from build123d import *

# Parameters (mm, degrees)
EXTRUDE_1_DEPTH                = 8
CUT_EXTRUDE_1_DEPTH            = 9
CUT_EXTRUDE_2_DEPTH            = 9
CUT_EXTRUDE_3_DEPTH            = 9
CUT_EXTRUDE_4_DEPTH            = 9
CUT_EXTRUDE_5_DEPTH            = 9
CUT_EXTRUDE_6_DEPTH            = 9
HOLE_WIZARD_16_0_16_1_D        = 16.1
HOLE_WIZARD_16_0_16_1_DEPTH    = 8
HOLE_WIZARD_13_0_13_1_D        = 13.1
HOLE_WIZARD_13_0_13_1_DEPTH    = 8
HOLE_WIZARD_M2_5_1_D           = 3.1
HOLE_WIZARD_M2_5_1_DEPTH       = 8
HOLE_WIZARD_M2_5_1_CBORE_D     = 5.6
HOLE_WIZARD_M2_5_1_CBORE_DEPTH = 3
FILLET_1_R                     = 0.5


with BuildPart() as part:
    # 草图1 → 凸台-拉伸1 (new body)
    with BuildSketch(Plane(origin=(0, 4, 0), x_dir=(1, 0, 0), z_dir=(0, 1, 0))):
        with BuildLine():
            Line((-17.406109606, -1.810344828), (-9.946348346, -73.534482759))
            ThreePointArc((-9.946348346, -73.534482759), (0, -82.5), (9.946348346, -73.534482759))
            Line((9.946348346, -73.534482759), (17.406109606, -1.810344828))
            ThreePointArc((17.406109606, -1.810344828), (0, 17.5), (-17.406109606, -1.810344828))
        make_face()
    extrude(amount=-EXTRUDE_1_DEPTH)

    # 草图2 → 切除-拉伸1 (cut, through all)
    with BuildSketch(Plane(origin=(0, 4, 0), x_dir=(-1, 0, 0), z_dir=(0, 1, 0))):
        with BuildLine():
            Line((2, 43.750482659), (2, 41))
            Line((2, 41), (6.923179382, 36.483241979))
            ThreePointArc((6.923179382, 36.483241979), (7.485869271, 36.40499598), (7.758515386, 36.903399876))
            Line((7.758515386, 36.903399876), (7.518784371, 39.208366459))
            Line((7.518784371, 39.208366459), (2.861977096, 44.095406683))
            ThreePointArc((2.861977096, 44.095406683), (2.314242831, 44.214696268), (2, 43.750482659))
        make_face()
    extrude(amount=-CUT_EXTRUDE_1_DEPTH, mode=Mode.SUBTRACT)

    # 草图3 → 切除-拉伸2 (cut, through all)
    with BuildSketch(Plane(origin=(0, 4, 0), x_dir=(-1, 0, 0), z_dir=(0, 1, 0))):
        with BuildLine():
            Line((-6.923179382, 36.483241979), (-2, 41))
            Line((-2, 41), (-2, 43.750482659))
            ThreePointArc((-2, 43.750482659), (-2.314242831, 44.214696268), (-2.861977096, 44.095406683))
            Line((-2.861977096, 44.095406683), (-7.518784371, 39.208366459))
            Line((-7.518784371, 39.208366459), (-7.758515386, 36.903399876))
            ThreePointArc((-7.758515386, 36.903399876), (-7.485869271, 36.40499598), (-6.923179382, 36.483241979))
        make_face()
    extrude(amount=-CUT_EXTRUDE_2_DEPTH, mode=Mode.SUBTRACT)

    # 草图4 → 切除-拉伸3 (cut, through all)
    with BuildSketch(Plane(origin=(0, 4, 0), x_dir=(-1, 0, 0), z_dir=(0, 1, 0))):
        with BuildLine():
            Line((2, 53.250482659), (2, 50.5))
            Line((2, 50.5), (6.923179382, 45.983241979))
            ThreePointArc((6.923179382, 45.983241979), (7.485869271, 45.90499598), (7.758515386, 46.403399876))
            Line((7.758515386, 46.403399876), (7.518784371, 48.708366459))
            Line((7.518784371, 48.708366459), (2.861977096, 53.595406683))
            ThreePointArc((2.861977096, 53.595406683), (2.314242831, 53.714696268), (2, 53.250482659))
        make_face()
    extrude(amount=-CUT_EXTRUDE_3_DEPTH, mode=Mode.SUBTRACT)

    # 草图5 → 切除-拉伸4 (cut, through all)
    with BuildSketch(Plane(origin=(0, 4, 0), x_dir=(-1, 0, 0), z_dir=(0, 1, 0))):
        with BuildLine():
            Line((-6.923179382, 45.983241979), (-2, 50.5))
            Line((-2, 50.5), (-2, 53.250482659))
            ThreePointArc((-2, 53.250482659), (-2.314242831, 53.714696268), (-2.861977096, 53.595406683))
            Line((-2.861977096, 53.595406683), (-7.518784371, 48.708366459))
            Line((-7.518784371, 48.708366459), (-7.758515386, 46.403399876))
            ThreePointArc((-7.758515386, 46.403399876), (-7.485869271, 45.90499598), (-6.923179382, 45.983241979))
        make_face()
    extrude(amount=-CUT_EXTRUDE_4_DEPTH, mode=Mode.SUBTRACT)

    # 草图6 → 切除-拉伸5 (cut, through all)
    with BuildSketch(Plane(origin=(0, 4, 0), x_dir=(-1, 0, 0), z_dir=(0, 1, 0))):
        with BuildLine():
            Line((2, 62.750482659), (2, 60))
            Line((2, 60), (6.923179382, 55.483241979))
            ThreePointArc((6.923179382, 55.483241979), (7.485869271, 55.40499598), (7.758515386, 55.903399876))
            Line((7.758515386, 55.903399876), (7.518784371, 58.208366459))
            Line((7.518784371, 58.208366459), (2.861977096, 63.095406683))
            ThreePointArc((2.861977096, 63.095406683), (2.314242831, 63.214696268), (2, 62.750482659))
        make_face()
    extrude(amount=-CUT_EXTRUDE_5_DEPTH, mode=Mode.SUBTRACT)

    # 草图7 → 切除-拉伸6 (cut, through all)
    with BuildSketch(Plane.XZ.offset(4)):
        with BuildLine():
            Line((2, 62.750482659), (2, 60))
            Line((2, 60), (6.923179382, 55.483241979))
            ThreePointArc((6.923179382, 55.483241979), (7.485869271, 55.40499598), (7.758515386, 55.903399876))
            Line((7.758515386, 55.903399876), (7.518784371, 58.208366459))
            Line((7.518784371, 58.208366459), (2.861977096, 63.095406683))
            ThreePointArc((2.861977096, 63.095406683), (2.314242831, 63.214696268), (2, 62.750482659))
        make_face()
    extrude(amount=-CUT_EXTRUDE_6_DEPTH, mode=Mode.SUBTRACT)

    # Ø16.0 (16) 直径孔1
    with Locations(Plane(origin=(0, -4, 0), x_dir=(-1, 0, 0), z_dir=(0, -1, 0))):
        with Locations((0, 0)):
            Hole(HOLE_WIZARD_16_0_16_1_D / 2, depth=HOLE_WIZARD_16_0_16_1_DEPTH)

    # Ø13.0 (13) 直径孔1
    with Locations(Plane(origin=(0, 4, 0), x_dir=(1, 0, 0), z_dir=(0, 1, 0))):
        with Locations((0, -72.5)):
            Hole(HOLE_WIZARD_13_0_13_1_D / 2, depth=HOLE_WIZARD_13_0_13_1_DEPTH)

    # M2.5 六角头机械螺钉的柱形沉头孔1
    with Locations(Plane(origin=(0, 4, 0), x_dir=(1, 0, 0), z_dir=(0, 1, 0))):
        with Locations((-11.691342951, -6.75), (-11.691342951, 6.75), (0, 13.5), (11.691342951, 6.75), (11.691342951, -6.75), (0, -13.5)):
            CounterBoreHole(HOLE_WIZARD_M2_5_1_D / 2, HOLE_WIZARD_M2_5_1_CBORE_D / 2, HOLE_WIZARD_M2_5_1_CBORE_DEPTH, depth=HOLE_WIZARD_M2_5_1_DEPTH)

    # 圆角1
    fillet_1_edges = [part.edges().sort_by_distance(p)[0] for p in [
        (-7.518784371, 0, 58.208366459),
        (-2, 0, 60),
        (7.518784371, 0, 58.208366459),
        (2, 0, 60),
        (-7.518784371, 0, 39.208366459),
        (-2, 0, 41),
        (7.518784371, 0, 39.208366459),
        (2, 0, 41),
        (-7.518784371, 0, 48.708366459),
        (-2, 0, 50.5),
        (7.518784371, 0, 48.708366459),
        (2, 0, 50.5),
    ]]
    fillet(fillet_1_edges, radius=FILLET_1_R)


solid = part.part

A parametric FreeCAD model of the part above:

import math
import FreeCAD as App
import Part
import Sketcher

V = App.Vector


def edges_at(feature, points):
    """Names of the edges that pass closest to the given points."""
    edges = feature.Shape.Edges
    near = lambda p: min(range(len(edges)), key=lambda i: edges[i].distToShape(Part.Vertex(*p))[0])
    return sorted({f"Edge{near(p) + 1}" for p in points})

doc = App.newDocument("Part")
body = doc.addObject("PartDesign::Body", "Body")

sketch1 = body.newObject("Sketcher::SketchObject", "Sketch")
sketch1.AttachmentSupport = (doc.getObject("XZ_Plane"), [""])
sketch1.MapMode = "FlatFace"
sketch1.AttachmentOffset = App.Placement(V(0, 0, -4), App.Rotation())
sketch1.addGeometry([
    Part.LineSegment(V(-17, 2, 0), V(-10, 74, 0)),
    Part.ArcOfCircle(Part.Circle(V(0, 72, 0), V(0, 0, 1), 10), math.radians(6), math.radians(174)),
    Part.LineSegment(V(10, 74, 0), V(17, 2, 0)),
    Part.ArcOfCircle(Part.Circle(V(0, 0, 0), V(0, 0, 1), 18), math.radians(174), math.radians(366)),
], False)
sketch1.addConstraint([
    Sketcher.Constraint("Tangent", 0, 2, 1, 2),
    Sketcher.Constraint("Tangent", 1, 1, 2, 1),
    Sketcher.Constraint("Tangent", 2, 2, 3, 2),
    Sketcher.Constraint("Tangent", 3, 1, 0, 1),
    Sketcher.Constraint("Coincident", 3, 3, -1, 1),
    Sketcher.Constraint("PointOnObject", 1, 3, -2),
    Sketcher.Constraint("Radius", 1, 10.0),
    Sketcher.Constraint("Radius", 3, 17.5),
    Sketcher.Constraint("DistanceY", -1, 1, 1, 3, 72.5),
])
pad1 = body.newObject("PartDesign::Pad", "Pad")
pad1.Profile = sketch1
pad1.Length = 8

sketch2 = body.newObject("Sketcher::SketchObject", "Sketch001")
sketch2.AttachmentSupport = (doc.getObject("XZ_Plane"), [""])
sketch2.MapMode = "FlatFace"
sketch2.AttachmentOffset = App.Placement(V(0, 0, -4), App.Rotation())
sketch2.addGeometry([
    Part.LineSegment(V(-2, 43.8, 0), V(-2, 41, 0)),
    Part.LineSegment(V(-2, 41, 0), V(-6.9, 36.5, 0)),
    Part.ArcOfCircle(Part.Circle(V(-7.3, 36.9, 0), V(0, 0, 1), 0.5), math.radians(174), math.radians(313)),
    Part.LineSegment(V(-7.8, 36.9, 0), V(-7.5, 39.2, 0)),
    Part.LineSegment(V(-7.5, 39.2, 0), V(-2.9, 44.1, 0)),
    Part.ArcOfCircle(Part.Circle(V(-2.5, 43.8, 0), V(0, 0, 1), 0.5), math.radians(0), math.radians(136)),
], False)
sketch2.addConstraint([
    Sketcher.Constraint("Coincident", 0, 2, 1, 1),
    Sketcher.Constraint("Tangent", 1, 2, 2, 2),
    Sketcher.Constraint("Tangent", 2, 1, 3, 1),
    Sketcher.Constraint("Coincident", 3, 2, 4, 1),
    Sketcher.Constraint("Tangent", 4, 2, 5, 2),
    Sketcher.Constraint("Tangent", 5, 1, 0, 1),
    Sketcher.Constraint("Vertical", 0),
    Sketcher.Constraint("Equal", 2, 5),
    Sketcher.Constraint("Radius", 2, 0.5),
    Sketcher.Constraint("DistanceX", 0, 2, -1, 1, 2.0),
    Sketcher.Constraint("DistanceY", -1, 1, 0, 2, 41.0),
    Sketcher.Constraint("Distance", 3, 2.3174),
    Sketcher.Constraint("DistanceY", -1, 1, 2, 1, 36.9034),
    Sketcher.Constraint("DistanceY", 0, 2, 0, 1, 2.750483),
    Sketcher.Constraint("DistanceX", 1, 2, -1, 1, 6.923179),
    Sketcher.Constraint("DistanceY", -1, 1, 1, 2, 36.483242),
])
pocket1 = body.newObject("PartDesign::Pocket", "Pocket")
pocket1.Profile = sketch2
pocket1.Type = "ThroughAll"
pocket1.Reversed = True

sketch3 = body.newObject("Sketcher::SketchObject", "Sketch002")
sketch3.AttachmentSupport = (doc.getObject("XZ_Plane"), [""])
sketch3.MapMode = "FlatFace"
sketch3.AttachmentOffset = App.Placement(V(0, 0, -4), App.Rotation())
sketch3.addGeometry([
    Part.LineSegment(V(6.9, 36.5, 0), V(2, 41, 0)),
    Part.LineSegment(V(2, 41, 0), V(2, 43.8, 0)),
    Part.ArcOfCircle(Part.Circle(V(2.5, 43.8, 0), V(0, 0, 1), 0.5), math.radians(44), math.radians(180)),
    Part.LineSegment(V(2.9, 44.1, 0), V(7.5, 39.2, 0)),
    Part.LineSegment(V(7.5, 39.2, 0), V(7.8, 36.9, 0)),
    Part.ArcOfCircle(Part.Circle(V(7.3, 36.9, 0), V(0, 0, 1), 0.5), math.radians(-133), math.radians(6)),
], False)
sketch3.addConstraint([
    Sketcher.Constraint("Coincident", 0, 2, 1, 1),
    Sketcher.Constraint("Tangent", 1, 2, 2, 2),
    Sketcher.Constraint("Tangent", 2, 1, 3, 1),
    Sketcher.Constraint("Coincident", 3, 2, 4, 1),
    Sketcher.Constraint("Tangent", 4, 2, 5, 2),
    Sketcher.Constraint("Tangent", 5, 1, 0, 1),
    Sketcher.Constraint("Vertical", 1),
    Sketcher.Constraint("Equal", 2, 5),
    Sketcher.Constraint("Radius", 2, 0.5),
    Sketcher.Constraint("DistanceX", -1, 1, 0, 2, 2.0),
    Sketcher.Constraint("DistanceY", -1, 1, 0, 2, 41.0),
    Sketcher.Constraint("Distance", 4, 2.3174),
    Sketcher.Constraint("DistanceY", -1, 1, 4, 2, 36.9034),
    Sketcher.Constraint("DistanceY", 1, 1, 1, 2, 2.750483),
    Sketcher.Constraint("DistanceX", -1, 1, 5, 1, 6.923179),
    Sketcher.Constraint("DistanceY", -1, 1, 5, 1, 36.483242),
])
pocket2 = body.newObject("PartDesign::Pocket", "Pocket001")
pocket2.Profile = sketch3
pocket2.Type = "ThroughAll"
pocket2.Reversed = True

sketch4 = body.newObject("Sketcher::SketchObject", "Sketch003")
sketch4.AttachmentSupport = (doc.getObject("XZ_Plane"), [""])
sketch4.MapMode = "FlatFace"
sketch4.AttachmentOffset = App.Placement(V(0, 0, -4), App.Rotation())
sketch4.addGeometry([
    Part.LineSegment(V(-2, 53.3, 0), V(-2, 50.5, 0)),
    Part.LineSegment(V(-2, 50.5, 0), V(-6.9, 46, 0)),
    Part.ArcOfCircle(Part.Circle(V(-7.3, 46.4, 0), V(0, 0, 1), 0.5), math.radians(174), math.radians(313)),
    Part.LineSegment(V(-7.8, 46.4, 0), V(-7.5, 48.7, 0)),
    Part.LineSegment(V(-7.5, 48.7, 0), V(-2.9, 53.6, 0)),
    Part.ArcOfCircle(Part.Circle(V(-2.5, 53.3, 0), V(0, 0, 1), 0.5), math.radians(0), math.radians(136)),
], False)
sketch4.addConstraint([
    Sketcher.Constraint("Coincident", 0, 2, 1, 1),
    Sketcher.Constraint("Tangent", 1, 2, 2, 2),
    Sketcher.Constraint("Tangent", 2, 1, 3, 1),
    Sketcher.Constraint("Coincident", 3, 2, 4, 1),
    Sketcher.Constraint("Tangent", 4, 2, 5, 2),
    Sketcher.Constraint("Tangent", 5, 1, 0, 1),
    Sketcher.Constraint("Vertical", 0),
    Sketcher.Constraint("Equal", 2, 5),
    Sketcher.Constraint("Radius", 2, 0.5),
    Sketcher.Constraint("DistanceX", 0, 2, -1, 1, 2.0),
    Sketcher.Constraint("DistanceY", -1, 1, 0, 2, 50.5),
    Sketcher.Constraint("Distance", 3, 2.3174),
    Sketcher.Constraint("DistanceY", -1, 1, 2, 1, 46.4034),
    Sketcher.Constraint("DistanceY", 0, 2, 0, 1, 2.750483),
    Sketcher.Constraint("DistanceX", 1, 2, -1, 1, 6.923179),
    Sketcher.Constraint("DistanceY", -1, 1, 1, 2, 45.983242),
])
pocket3 = body.newObject("PartDesign::Pocket", "Pocket002")
pocket3.Profile = sketch4
pocket3.Type = "ThroughAll"
pocket3.Reversed = True

sketch5 = body.newObject("Sketcher::SketchObject", "Sketch004")
sketch5.AttachmentSupport = (doc.getObject("XZ_Plane"), [""])
sketch5.MapMode = "FlatFace"
sketch5.AttachmentOffset = App.Placement(V(0, 0, -4), App.Rotation())
sketch5.addGeometry([
    Part.LineSegment(V(6.9, 46, 0), V(2, 50.5, 0)),
    Part.LineSegment(V(2, 50.5, 0), V(2, 53.3, 0)),
    Part.ArcOfCircle(Part.Circle(V(2.5, 53.3, 0), V(0, 0, 1), 0.5), math.radians(44), math.radians(180)),
    Part.LineSegment(V(2.9, 53.6, 0), V(7.5, 48.7, 0)),
    Part.LineSegment(V(7.5, 48.7, 0), V(7.8, 46.4, 0)),
    Part.ArcOfCircle(Part.Circle(V(7.3, 46.4, 0), V(0, 0, 1), 0.5), math.radians(-133), math.radians(6)),
], False)
sketch5.addConstraint([
    Sketcher.Constraint("Coincident", 0, 2, 1, 1),
    Sketcher.Constraint("Tangent", 1, 2, 2, 2),
    Sketcher.Constraint("Tangent", 2, 1, 3, 1),
    Sketcher.Constraint("Coincident", 3, 2, 4, 1),
    Sketcher.Constraint("Tangent", 4, 2, 5, 2),
    Sketcher.Constraint("Tangent", 5, 1, 0, 1),
    Sketcher.Constraint("Vertical", 1),
    Sketcher.Constraint("Equal", 2, 5),
    Sketcher.Constraint("Radius", 2, 0.5),
    Sketcher.Constraint("DistanceX", -1, 1, 0, 2, 2.0),
    Sketcher.Constraint("DistanceY", -1, 1, 0, 2, 50.5),
    Sketcher.Constraint("Distance", 4, 2.3174),
    Sketcher.Constraint("DistanceY", -1, 1, 4, 2, 46.4034),
    Sketcher.Constraint("DistanceY", 1, 1, 1, 2, 2.750483),
    Sketcher.Constraint("DistanceX", -1, 1, 5, 1, 6.923179),
    Sketcher.Constraint("DistanceY", -1, 1, 5, 1, 45.983242),
])
pocket4 = body.newObject("PartDesign::Pocket", "Pocket003")
pocket4.Profile = sketch5
pocket4.Type = "ThroughAll"
pocket4.Reversed = True

sketch6 = body.newObject("Sketcher::SketchObject", "Sketch005")
sketch6.AttachmentSupport = (doc.getObject("XZ_Plane"), [""])
sketch6.MapMode = "FlatFace"
sketch6.AttachmentOffset = App.Placement(V(0, 0, -4), App.Rotation())
sketch6.addGeometry([
    Part.LineSegment(V(-2, 62.8, 0), V(-2, 60, 0)),
    Part.LineSegment(V(-2, 60, 0), V(-6.9, 55.5, 0)),
    Part.ArcOfCircle(Part.Circle(V(-7.3, 55.9, 0), V(0, 0, 1), 0.5), math.radians(174), math.radians(313)),
    Part.LineSegment(V(-7.8, 55.9, 0), V(-7.5, 58.2, 0)),
    Part.LineSegment(V(-7.5, 58.2, 0), V(-2.9, 63.1, 0)),
    Part.ArcOfCircle(Part.Circle(V(-2.5, 62.8, 0), V(0, 0, 1), 0.5), math.radians(0), math.radians(136)),
], False)
sketch6.addConstraint([
    Sketcher.Constraint("Coincident", 0, 2, 1, 1),
    Sketcher.Constraint("Tangent", 1, 2, 2, 2),
    Sketcher.Constraint("Tangent", 2, 1, 3, 1),
    Sketcher.Constraint("Coincident", 3, 2, 4, 1),
    Sketcher.Constraint("Tangent", 4, 2, 5, 2),
    Sketcher.Constraint("Tangent", 5, 1, 0, 1),
    Sketcher.Constraint("Vertical", 0),
    Sketcher.Constraint("Equal", 2, 5),
    Sketcher.Constraint("Radius", 2, 0.5),
    Sketcher.Constraint("DistanceX", 0, 2, -1, 1, 2.0),
    Sketcher.Constraint("DistanceY", -1, 1, 0, 2, 60.0),
    Sketcher.Constraint("Distance", 3, 2.3174),
    Sketcher.Constraint("DistanceY", -1, 1, 2, 1, 55.9034),
    Sketcher.Constraint("DistanceY", 0, 2, 0, 1, 2.750483),
    Sketcher.Constraint("DistanceX", 1, 2, -1, 1, 6.923179),
    Sketcher.Constraint("DistanceY", -1, 1, 1, 2, 55.483242),
])
pocket5 = body.newObject("PartDesign::Pocket", "Pocket004")
pocket5.Profile = sketch6
pocket5.Type = "ThroughAll"
pocket5.Reversed = True

sketch7 = body.newObject("Sketcher::SketchObject", "Sketch006")
sketch7.AttachmentSupport = (doc.getObject("XZ_Plane"), [""])
sketch7.MapMode = "FlatFace"
sketch7.AttachmentOffset = App.Placement(V(0, 0, 4), App.Rotation())
sketch7.addGeometry([
    Part.LineSegment(V(2, 62.8, 0), V(2, 60, 0)),
    Part.LineSegment(V(2, 60, 0), V(6.9, 55.5, 0)),
    Part.ArcOfCircle(Part.Circle(V(7.3, 55.9, 0), V(0, 0, 1), 0.5), math.radians(-133), math.radians(6)),
    Part.LineSegment(V(7.8, 55.9, 0), V(7.5, 58.2, 0)),
    Part.LineSegment(V(7.5, 58.2, 0), V(2.9, 63.1, 0)),
    Part.ArcOfCircle(Part.Circle(V(2.5, 62.8, 0), V(0, 0, 1), 0.5), math.radians(44), math.radians(180)),
], False)
sketch7.addConstraint([
    Sketcher.Constraint("Coincident", 0, 2, 1, 1),
    Sketcher.Constraint("Tangent", 1, 2, 2, 1),
    Sketcher.Constraint("Tangent", 2, 2, 3, 1),
    Sketcher.Constraint("Coincident", 3, 2, 4, 1),
    Sketcher.Constraint("Tangent", 4, 2, 5, 1),
    Sketcher.Constraint("Tangent", 5, 2, 0, 1),
    Sketcher.Constraint("Vertical", 0),
    Sketcher.Constraint("Equal", 2, 5),
    Sketcher.Constraint("Radius", 2, 0.5),
    Sketcher.Constraint("DistanceX", -1, 1, 0, 2, 2.0),
    Sketcher.Constraint("DistanceY", -1, 1, 0, 2, 60.0),
    Sketcher.Constraint("Distance", 3, 2.3174),
    Sketcher.Constraint("DistanceY", -1, 1, 2, 2, 55.9034),
    Sketcher.Constraint("DistanceY", 0, 2, 0, 1, 2.750483),
    Sketcher.Constraint("DistanceX", -1, 1, 1, 2, 6.923179),
    Sketcher.Constraint("DistanceY", -1, 1, 1, 2, 55.483242),
])
pocket6 = body.newObject("PartDesign::Pocket", "Pocket005")
pocket6.Profile = sketch7
pocket6.Type = "ThroughAll"

sketch8 = body.newObject("Sketcher::SketchObject", "Sketch007")
sketch8.AttachmentSupport = (doc.getObject("XZ_Plane"), [""])
sketch8.MapMode = "FlatFace"
sketch8.AttachmentOffset = App.Placement(V(0, 0, 4), App.Rotation())
sketch8.addGeometry(Part.Circle(V(0, 0, 0), V(0, 0, 1), 8), False)
sketch8.addConstraint([
    Sketcher.Constraint("Coincident", 0, 3, -1, 1),
    Sketcher.Constraint("Diameter", 0, 16.1),
])
doc.recompute()
hole = body.newObject("PartDesign::Hole", "Hole")
hole.Profile = sketch8
hole.ThreadType = "None"
hole.Diameter = 16.1
hole.DepthType = "Dimension"
hole.Depth = 8
hole.DrillPoint = "Flat"

sketch9 = body.newObject("Sketcher::SketchObject", "Sketch008")
sketch9.AttachmentSupport = (doc.getObject("XZ_Plane"), [""])
sketch9.MapMode = "FlatFace"
sketch9.AttachmentOffset = App.Placement(V(0, 0, -4), App.Rotation())
sketch9.addGeometry(Part.Circle(V(0, 72, 0), V(0, 0, 1), 7), False)
sketch9.addConstraint([
    Sketcher.Constraint("PointOnObject", 0, 3, -2),
    Sketcher.Constraint("Diameter", 0, 13.1),
    Sketcher.Constraint("DistanceY", -1, 1, 0, 3, 72.5),
])
doc.recompute()
hole2 = body.newObject("PartDesign::Hole", "Hole001")
hole2.Profile = sketch9
hole2.ThreadType = "None"
hole2.Diameter = 13.1
hole2.DepthType = "Dimension"
hole2.Depth = 8
hole2.DrillPoint = "Flat"
hole2.Reversed = True

sketch10 = body.newObject("Sketcher::SketchObject", "Sketch009")
sketch10.AttachmentSupport = (doc.getObject("XZ_Plane"), [""])
sketch10.MapMode = "FlatFace"
sketch10.AttachmentOffset = App.Placement(V(0, 0, -4), App.Rotation())
sketch10.addGeometry([
    Part.Circle(V(-11.7, 6.8, 0), V(0, 0, 1), 1.6),
    Part.Circle(V(-11.7, -6.8, 0), V(0, 0, 1), 1.6),
    Part.Circle(V(0, -13.5, 0), V(0, 0, 1), 1.6),
    Part.Circle(V(11.7, -6.8, 0), V(0, 0, 1), 1.6),
    Part.Circle(V(11.7, 6.8, 0), V(0, 0, 1), 1.6),
    Part.Circle(V(0, 13.5, 0), V(0, 0, 1), 1.6),
], False)
sketch10.addConstraint([
    Sketcher.Constraint("Equal", 0, 1),
    Sketcher.Constraint("Equal", 1, 2),
    Sketcher.Constraint("Equal", 2, 3),
    Sketcher.Constraint("Equal", 3, 4),
    Sketcher.Constraint("Equal", 4, 5),
    Sketcher.Constraint("Symmetric", 0, 3, 3, 3, -1, 1),
    Sketcher.Constraint("Symmetric", 1, 3, 4, 3, -1, 1),
    Sketcher.Constraint("Symmetric", 2, 3, 5, 3, -1, 1),
    Sketcher.Constraint("Symmetric", 1, 3, 3, 3, -2),
    Sketcher.Constraint("PointOnObject", 2, 3, -2),
    Sketcher.Constraint("Diameter", 0, 3.1),
    Sketcher.Constraint("DistanceY", 2, 3, 5, 3, 27.0),
    Sketcher.Constraint("DistanceY", 1, 3, 0, 3, 13.5),
    Sketcher.Constraint("DistanceX", 0, 3, -1, 1, 11.691343),
])
doc.recompute()
hole3 = body.newObject("PartDesign::Hole", "Hole002")
hole3.Profile = sketch10
hole3.ThreadType = "None"
hole3.Diameter = 3.1
hole3.DepthType = "Dimension"
hole3.Depth = 8
hole3.DrillPoint = "Flat"
hole3.HoleCutType = "Counterbore"
hole3.HoleCutDiameter = 5.6
hole3.HoleCutDepth = 3
hole3.Reversed = True
doc.recompute()

fillet = body.newObject("PartDesign::Fillet", "Fillet")
fillet.Base = (hole3, edges_at(hole3, [
    (-7.519, 0, 58.208),
    (-2, 0, 60),
    (7.519, 0, 58.208),
    (2, 0, 60),
    (-7.519, 0, 39.208),
    (-2, 0, 41),
    (7.519, 0, 39.208),
    (2, 0, 41),
    (-7.519, 0, 48.708),
    (-2, 0, 50.5),
    (7.519, 0, 48.708),
    (2, 0, 50.5),
]))
fillet.Radius = 0.5

doc.recompute()
